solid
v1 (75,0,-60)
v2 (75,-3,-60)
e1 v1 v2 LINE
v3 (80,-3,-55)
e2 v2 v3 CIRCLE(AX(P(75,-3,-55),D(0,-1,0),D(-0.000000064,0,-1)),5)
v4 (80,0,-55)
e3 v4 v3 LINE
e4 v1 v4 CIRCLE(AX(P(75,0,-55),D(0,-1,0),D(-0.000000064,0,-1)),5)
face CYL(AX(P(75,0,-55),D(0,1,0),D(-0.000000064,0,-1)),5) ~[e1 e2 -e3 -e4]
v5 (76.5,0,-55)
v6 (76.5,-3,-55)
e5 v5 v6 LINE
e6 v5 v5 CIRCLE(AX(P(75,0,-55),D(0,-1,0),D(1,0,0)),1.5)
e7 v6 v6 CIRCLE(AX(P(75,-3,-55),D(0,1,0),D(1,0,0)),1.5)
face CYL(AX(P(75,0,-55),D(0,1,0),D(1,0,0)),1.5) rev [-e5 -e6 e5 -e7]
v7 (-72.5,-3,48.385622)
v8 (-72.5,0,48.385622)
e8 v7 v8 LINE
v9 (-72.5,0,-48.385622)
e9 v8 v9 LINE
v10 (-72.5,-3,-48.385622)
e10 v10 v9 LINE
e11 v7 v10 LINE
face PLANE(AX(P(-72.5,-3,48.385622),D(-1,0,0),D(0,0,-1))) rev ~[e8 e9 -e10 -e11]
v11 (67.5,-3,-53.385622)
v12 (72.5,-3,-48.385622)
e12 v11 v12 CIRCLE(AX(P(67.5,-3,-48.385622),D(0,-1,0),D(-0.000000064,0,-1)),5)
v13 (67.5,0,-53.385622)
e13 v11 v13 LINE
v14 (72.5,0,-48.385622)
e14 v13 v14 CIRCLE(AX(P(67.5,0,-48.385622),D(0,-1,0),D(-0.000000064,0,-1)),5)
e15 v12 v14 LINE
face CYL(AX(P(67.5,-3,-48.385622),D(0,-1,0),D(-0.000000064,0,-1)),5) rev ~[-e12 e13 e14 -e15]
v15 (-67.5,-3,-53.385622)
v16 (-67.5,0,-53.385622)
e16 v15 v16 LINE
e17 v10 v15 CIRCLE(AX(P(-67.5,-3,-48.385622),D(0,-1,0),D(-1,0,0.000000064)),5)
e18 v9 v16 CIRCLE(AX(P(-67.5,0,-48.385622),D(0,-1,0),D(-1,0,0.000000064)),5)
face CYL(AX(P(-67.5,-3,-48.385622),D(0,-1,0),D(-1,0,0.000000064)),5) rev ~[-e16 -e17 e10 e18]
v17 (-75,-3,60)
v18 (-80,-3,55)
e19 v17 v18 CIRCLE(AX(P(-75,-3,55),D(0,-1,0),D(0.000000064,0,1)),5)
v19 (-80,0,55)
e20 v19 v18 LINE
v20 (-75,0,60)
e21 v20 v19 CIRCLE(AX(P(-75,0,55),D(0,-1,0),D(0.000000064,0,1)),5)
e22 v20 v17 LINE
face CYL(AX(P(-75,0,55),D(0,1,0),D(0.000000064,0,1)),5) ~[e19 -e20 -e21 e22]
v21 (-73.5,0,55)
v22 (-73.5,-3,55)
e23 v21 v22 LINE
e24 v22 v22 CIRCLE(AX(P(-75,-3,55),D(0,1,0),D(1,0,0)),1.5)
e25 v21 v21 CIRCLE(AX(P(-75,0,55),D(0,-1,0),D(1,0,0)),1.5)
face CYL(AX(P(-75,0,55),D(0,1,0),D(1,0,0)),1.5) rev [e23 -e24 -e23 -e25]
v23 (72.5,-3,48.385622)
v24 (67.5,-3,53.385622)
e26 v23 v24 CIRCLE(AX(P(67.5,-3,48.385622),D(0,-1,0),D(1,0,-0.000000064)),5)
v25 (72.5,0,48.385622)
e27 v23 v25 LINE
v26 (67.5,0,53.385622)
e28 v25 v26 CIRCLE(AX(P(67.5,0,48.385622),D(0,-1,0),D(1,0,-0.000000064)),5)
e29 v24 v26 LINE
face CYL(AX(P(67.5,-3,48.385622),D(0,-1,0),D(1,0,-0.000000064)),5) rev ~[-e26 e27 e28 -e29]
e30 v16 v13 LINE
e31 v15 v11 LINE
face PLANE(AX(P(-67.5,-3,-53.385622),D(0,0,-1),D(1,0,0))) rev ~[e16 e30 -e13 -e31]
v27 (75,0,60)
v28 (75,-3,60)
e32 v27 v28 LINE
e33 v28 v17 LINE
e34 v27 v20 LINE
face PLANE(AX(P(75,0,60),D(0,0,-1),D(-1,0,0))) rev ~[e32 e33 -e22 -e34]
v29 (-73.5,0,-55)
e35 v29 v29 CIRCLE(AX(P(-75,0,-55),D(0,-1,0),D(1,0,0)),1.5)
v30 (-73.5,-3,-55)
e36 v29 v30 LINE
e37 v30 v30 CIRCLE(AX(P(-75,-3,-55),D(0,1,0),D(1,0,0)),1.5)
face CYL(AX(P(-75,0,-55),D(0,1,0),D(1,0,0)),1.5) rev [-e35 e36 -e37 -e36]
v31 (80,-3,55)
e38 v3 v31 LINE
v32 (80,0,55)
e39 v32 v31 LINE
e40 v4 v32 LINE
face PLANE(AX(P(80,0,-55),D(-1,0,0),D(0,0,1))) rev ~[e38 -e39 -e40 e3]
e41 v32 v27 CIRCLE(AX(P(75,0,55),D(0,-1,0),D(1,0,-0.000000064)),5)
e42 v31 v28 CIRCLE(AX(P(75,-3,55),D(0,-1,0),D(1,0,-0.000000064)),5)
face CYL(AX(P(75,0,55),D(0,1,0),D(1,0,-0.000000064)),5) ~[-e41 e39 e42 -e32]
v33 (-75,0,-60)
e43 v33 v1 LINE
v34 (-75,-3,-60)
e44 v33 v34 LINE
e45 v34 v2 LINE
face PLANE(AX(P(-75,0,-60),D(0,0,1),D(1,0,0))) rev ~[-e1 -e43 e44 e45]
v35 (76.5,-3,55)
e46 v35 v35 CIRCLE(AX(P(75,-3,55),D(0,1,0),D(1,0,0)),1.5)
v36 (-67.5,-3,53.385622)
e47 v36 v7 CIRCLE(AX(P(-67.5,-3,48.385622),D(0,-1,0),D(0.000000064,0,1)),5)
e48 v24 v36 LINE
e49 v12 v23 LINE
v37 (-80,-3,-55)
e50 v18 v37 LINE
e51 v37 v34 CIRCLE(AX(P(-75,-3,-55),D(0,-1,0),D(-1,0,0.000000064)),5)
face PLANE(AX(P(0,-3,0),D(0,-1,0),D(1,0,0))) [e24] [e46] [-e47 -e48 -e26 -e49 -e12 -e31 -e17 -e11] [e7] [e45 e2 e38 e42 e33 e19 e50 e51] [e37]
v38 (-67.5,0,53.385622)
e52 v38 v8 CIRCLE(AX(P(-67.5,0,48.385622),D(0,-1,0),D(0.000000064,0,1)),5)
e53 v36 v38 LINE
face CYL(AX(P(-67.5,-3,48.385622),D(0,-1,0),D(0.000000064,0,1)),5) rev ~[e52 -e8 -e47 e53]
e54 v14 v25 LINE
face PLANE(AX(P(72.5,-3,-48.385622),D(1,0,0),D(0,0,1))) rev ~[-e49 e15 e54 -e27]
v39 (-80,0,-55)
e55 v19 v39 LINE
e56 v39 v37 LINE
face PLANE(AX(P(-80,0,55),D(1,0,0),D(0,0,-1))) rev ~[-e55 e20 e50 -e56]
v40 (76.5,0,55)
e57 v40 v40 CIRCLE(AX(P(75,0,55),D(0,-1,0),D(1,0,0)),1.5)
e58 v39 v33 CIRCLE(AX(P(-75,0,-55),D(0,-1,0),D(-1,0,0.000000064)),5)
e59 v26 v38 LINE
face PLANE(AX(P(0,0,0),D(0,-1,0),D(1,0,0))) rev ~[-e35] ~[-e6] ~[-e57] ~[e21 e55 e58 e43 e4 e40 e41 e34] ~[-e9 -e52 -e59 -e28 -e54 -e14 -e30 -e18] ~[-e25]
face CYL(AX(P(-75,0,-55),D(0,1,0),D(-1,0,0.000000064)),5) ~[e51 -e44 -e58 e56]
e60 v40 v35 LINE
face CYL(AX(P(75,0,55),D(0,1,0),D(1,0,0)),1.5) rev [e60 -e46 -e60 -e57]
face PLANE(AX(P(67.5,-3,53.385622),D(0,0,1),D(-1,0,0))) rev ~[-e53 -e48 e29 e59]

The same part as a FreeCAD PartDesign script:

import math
import FreeCAD as App
import Part
import Sketcher

V = App.Vector
Q = App.Units.Quantity

doc = App.newDocument("Part")
body = doc.addObject("PartDesign::Body", "Body")

sketch1 = body.newObject("Sketcher::SketchObject", "Sketch")
sketch1.AttachmentSupport = (doc.getObject("XZ_Plane"), [""])
sketch1.MapMode = "FlatFace"
sketch1.addGeometry([
    Part.LineSegment(V(-75, -60, 0), V(75, -60, 0)),
    Part.ArcOfCircle(Part.Circle(V(75, -55, 0), V(0, 0, 1), 5), math.radians(-90), math.radians(0)),
    Part.LineSegment(V(80, -55, 0), V(80, 55, 0)),
    Part.ArcOfCircle(Part.Circle(V(75, 55, 0), V(0, 0, 1), 5), math.radians(0), math.radians(90)),
    Part.LineSegment(V(75, 60, 0), V(-75, 60, 0)),
    Part.ArcOfCircle(Part.Circle(V(-75, 55, 0), V(0, 0, 1), 5), math.radians(90), math.radians(180)),
    Part.LineSegment(V(-80, 55, 0), V(-80, -55, 0)),
    Part.ArcOfCircle(Part.Circle(V(-75, -55, 0), V(0, 0, 1), 5), math.radians(180), math.radians(270)),
], False)
sketch1.addConstraint([
    Sketcher.Constraint("Tangent", 0, 2, 1, 1),
    Sketcher.Constraint("Tangent", 1, 2, 2, 1),
    Sketcher.Constraint("Tangent", 2, 2, 3, 1),
    Sketcher.Constraint("Tangent", 3, 2, 4, 1),
    Sketcher.Constraint("Tangent", 4, 2, 5, 1),
    Sketcher.Constraint("Tangent", 5, 2, 6, 1),
    Sketcher.Constraint("Tangent", 6, 2, 7, 1),
    Sketcher.Constraint("Tangent", 7, 2, 0, 1),
    Sketcher.Constraint("Horizontal", 0),
    Sketcher.Constraint("Vertical", 2),
    Sketcher.Constraint("Horizontal", 4),
    Sketcher.Constraint("Vertical", 6),
    Sketcher.Constraint("Equal", 1, 3),
    Sketcher.Constraint("Equal", 3, 5),
    Sketcher.Constraint("Equal", 5, 7),
    Sketcher.Constraint("Symmetric", 1, 3, 5, 3, -1, 1),
    Sketcher.Constraint("Radius", 1, Q("5 mm")),
    Sketcher.Constraint("DistanceX", 0, 1, 0, 2, Q("150 mm")),
    Sketcher.Constraint("DistanceY", 2, 1, 2, 2, Q("110 mm")),
])
pad1 = body.newObject("PartDesign::Pad", "Pad")
pad1.Profile = sketch1
pad1.Length = 3

sketch2 = body.newObject("Sketcher::SketchObject", "Sketch001")
sketch2.AttachmentSupport = (doc.getObject("XZ_Plane"), [""])
sketch2.MapMode = "FlatFace"
sketch2.addGeometry([
    Part.Circle(V(-75, 55, 0), V(0, 0, 1), 1.5),
    Part.Circle(V(75, 55, 0), V(0, 0, 1), 1.5),
    Part.Circle(V(75, -55, 0), V(0, 0, 1), 1.5),
    Part.Circle(V(-75, -55, 0), V(0, 0, 1), 1.5),
], False)
sketch2.addConstraint([
    Sketcher.Constraint("Equal", 0, 1),
    Sketcher.Constraint("Equal", 1, 2),
    Sketcher.Constraint("Equal", 2, 3),
    Sketcher.Constraint("Symmetric", 0, 3, 2, 3, -1, 1),
    Sketcher.Constraint("Symmetric", 1, 3, 3, 3, -1, 1),
    Sketcher.Constraint("Symmetric", 0, 3, 1, 3, -2),
    Sketcher.Constraint("Diameter", 0, Q("3 mm")),
    Sketcher.Constraint("DistanceX", 0, 3, -1, 1, Q("75 mm")),
    Sketcher.Constraint("DistanceY", -1, 1, 0, 3, Q("55 mm")),
])
pocket1 = body.newObject("PartDesign::Pocket", "Pocket")
pocket1.Profile = sketch2
pocket1.Length = 25
pocket1.Reversed = True

sketch3 = body.newObject("Sketcher::SketchObject", "Sketch002")
sketch3.AttachmentSupport = (doc.getObject("XZ_Plane"), [""])
sketch3.MapMode = "FlatFace"
sketch3.AttachmentOffset = App.Placement(V(0, 0, 3), App.Rotation())
sketch3.addGeometry([
    Part.ArcOfCircle(Part.Circle(V(67.5, 48.4, 0), V(0, 0, 1), 5), math.radians(0), math.radians(90)),
    Part.LineSegment(V(67.5, 53.4, 0), V(-67.5, 53.4, 0)),
    Part.ArcOfCircle(Part.Circle(V(-67.5, 48.4, 0), V(0, 0, 1), 5), math.radians(90), math.radians(180)),
    Part.LineSegment(V(-72.5, 48.4, 0), V(-72.5, -48.4, 0)),
    Part.ArcOfCircle(Part.Circle(V(-67.5, -48.4, 0), V(0, 0, 1), 5), math.radians(180), math.radians(270)),
    Part.LineSegment(V(-67.5, -53.4, 0), V(67.5, -53.4, 0)),
    Part.ArcOfCircle(Part.Circle(V(67.5, -48.4, 0), V(0, 0, 1), 5), math.radians(-90), math.radians(0)),
    Part.LineSegment(V(72.5, -48.4, 0), V(72.5, 48.4, 0)),
], False)
sketch3.addConstraint([
    Sketcher.Constraint("Tangent", 0, 2, 1, 1),
    Sketcher.Constraint("Tangent", 1, 2, 2, 1),
    Sketcher.Constraint("Tangent", 2, 2, 3, 1),
    Sketcher.Constraint("Tangent", 3, 2, 4, 1),
    Sketcher.Constraint("Tangent", 4, 2, 5, 1),
    Sketcher.Constraint("Tangent", 5, 2, 6, 1),
    Sketcher.Constraint("Tangent", 6, 2, 7, 1),
    Sketcher.Constraint("Tangent", 7, 2, 0, 1),
    Sketcher.Constraint("Horizontal", 1),
    Sketcher.Constraint("Vertical", 3),
    Sketcher.Constraint("Horizontal", 5),
    Sketcher.Constraint("Vertical", 7),
    Sketcher.Constraint("Equal", 0, 2),
    Sketcher.Constraint("Equal", 2, 4),
    Sketcher.Constraint("Equal", 4, 6),
    Sketcher.Constraint("Symmetric", 0, 3, 4, 3, -1, 1),
    Sketcher.Constraint("Radius", 0, Q("5 mm")),
    Sketcher.Constraint("DistanceX", 1, 2, 1, 1, Q("135 mm")),
    Sketcher.Constraint("DistanceY", 3, 2, 3, 1, Q("96.771244 mm")),
])
pocket2 = body.newObject("PartDesign::Pocket", "Pocket001")
pocket2.Profile = sketch3
pocket2.Length = 3

doc.recompute()
